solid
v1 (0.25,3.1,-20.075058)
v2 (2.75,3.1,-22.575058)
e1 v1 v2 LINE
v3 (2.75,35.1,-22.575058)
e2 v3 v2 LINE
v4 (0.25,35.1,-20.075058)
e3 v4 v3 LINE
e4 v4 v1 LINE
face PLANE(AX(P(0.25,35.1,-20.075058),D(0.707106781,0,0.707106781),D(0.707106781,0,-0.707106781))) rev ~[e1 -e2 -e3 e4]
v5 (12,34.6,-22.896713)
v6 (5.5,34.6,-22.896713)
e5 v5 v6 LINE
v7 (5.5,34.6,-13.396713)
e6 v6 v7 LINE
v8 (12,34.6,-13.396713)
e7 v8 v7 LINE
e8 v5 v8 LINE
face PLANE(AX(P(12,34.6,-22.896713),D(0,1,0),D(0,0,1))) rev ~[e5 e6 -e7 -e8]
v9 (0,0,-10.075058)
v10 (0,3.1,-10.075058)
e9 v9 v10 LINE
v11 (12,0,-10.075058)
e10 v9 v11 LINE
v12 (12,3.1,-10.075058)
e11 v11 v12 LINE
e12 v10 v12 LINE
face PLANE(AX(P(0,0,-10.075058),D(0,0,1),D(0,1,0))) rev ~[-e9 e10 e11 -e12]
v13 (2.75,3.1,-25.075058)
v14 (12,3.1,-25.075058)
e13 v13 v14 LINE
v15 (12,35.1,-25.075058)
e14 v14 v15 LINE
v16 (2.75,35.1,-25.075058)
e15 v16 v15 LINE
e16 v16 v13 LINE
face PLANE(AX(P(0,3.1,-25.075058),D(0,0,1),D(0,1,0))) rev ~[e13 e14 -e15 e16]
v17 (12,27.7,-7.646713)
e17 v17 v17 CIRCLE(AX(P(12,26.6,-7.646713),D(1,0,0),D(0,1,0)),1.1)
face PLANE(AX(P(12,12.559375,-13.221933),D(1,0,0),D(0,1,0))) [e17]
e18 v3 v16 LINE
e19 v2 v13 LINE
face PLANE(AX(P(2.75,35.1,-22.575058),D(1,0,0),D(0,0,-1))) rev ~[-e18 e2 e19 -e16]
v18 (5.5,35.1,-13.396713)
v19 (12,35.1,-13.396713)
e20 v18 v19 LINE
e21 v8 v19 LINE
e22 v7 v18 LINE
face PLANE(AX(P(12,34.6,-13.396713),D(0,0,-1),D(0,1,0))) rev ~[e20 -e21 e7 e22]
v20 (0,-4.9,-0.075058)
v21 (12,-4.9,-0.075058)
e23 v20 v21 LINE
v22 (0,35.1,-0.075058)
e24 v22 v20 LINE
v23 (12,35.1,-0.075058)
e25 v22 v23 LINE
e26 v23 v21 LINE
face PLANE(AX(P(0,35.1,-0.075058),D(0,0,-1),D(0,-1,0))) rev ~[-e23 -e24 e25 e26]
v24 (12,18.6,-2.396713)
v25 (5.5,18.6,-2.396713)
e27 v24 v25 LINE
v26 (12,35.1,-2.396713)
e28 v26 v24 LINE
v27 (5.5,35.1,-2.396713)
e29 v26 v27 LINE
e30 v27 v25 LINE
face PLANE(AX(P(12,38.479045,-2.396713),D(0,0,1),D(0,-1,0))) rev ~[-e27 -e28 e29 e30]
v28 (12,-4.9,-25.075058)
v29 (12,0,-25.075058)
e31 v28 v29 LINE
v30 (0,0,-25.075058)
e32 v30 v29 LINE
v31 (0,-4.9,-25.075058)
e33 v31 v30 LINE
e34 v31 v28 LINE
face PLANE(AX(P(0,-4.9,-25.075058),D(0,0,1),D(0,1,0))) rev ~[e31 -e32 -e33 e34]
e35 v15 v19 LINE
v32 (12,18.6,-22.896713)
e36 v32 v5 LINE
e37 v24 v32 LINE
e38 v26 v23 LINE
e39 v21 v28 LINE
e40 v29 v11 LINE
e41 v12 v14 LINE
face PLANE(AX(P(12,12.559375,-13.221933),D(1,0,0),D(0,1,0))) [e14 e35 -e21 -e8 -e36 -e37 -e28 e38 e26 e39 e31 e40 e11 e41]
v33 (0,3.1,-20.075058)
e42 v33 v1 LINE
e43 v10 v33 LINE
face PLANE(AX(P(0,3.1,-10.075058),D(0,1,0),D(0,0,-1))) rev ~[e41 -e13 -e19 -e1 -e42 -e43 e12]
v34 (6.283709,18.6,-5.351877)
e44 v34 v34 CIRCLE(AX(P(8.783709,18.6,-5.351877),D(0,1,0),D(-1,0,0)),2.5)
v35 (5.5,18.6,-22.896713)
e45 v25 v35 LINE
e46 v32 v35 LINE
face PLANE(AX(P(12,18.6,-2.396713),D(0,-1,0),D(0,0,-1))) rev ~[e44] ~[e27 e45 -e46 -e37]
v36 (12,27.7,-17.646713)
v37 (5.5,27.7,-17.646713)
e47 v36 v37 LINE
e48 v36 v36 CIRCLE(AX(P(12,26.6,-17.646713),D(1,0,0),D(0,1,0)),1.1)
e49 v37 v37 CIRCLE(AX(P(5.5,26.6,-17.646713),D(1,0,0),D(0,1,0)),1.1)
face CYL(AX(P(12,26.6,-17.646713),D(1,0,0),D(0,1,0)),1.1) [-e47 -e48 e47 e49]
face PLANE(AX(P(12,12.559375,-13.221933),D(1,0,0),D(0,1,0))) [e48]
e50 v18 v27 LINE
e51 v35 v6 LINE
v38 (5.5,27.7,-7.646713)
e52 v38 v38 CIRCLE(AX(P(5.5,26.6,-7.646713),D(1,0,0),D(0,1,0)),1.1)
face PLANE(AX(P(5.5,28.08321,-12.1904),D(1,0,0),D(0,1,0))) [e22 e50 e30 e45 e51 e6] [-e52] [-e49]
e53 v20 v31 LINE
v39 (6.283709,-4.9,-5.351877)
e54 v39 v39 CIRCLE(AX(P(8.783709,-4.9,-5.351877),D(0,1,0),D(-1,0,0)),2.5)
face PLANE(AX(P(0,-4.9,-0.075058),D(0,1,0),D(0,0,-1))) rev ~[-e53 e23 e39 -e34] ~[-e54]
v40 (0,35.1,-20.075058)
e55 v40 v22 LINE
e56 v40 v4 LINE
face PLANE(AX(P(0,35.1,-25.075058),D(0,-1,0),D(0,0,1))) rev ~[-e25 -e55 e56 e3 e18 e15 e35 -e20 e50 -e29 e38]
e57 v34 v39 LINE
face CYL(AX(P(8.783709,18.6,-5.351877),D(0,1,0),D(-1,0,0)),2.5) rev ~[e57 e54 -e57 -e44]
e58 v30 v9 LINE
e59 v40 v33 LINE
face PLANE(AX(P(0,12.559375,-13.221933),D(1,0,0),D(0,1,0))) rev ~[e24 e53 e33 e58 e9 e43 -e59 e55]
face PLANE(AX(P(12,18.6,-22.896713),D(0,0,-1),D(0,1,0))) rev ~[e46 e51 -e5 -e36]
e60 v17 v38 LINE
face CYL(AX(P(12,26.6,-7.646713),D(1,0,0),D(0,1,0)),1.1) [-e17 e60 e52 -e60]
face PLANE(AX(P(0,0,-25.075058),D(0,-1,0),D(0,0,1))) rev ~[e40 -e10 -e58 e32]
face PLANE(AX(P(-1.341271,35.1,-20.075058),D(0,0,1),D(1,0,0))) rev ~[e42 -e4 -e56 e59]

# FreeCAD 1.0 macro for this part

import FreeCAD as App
import Part
import Sketcher

V = App.Vector
Q = App.Units.Quantity

doc = App.newDocument("Part")
body = doc.addObject("PartDesign::Body", "Body")

# Sketch on YZ plane
sketch1 = body.newObject("Sketcher::SketchObject", "Sketch")
sketch1.AttachmentSupport = (doc.getObject("YZ_Plane"), [""])
sketch1.MapMode = "FlatFace"
sketch1.addGeometry([
    Part.LineSegment(V(35.1, -0.075058, 0), V(-4.9, -0.075058, 0)),  # 0
    Part.LineSegment(V(-4.9, -0.075058, 0), V(-4.9, -25.075058, 0)),  # 1
    Part.LineSegment(V(-4.9, -25.075058, 0), V(0, -25.075058, 0)),  # 2
    Part.LineSegment(V(0, -25.075058, 0), V(0, -10.075058, 0)),  # 3
    Part.LineSegment(V(0, -10.075058, 0), V(3.1, -10.075058, 0)),  # 4
    Part.LineSegment(V(3.1, -10.075058, 0), V(3.1, -25.075058, 0)),  # 5
    Part.LineSegment(V(3.1, -25.075058, 0), V(35.1, -25.075058, 0)),  # 6
    Part.LineSegment(V(35.1, -25.075058, 0), V(35.1, -0.075058, 0)),  # 7
], False)
sketch1.addConstraint([
    Sketcher.Constraint("Coincident", 0, 2, 1, 1),
    Sketcher.Constraint("Coincident", 1, 2, 2, 1),
    Sketcher.Constraint("Coincident", 2, 2, 3, 1),
    Sketcher.Constraint("Coincident", 3, 2, 4, 1),
    Sketcher.Constraint("Coincident", 4, 2, 5, 1),
    Sketcher.Constraint("Coincident", 5, 2, 6, 1),
    Sketcher.Constraint("Coincident", 6, 2, 7, 1),
    Sketcher.Constraint("Coincident", 7, 2, 0, 1),
    Sketcher.Constraint("Horizontal", 0),
    Sketcher.Constraint("Vertical", 1),
    Sketcher.Constraint("Horizontal", 2),
    Sketcher.Constraint("Vertical", 3),
    Sketcher.Constraint("Horizontal", 4),
    Sketcher.Constraint("Vertical", 5),
    Sketcher.Constraint("Horizontal", 6),
    Sketcher.Constraint("Vertical", 7),
    Sketcher.Constraint("PointOnObject", 2, 2, -2),
    Sketcher.Constraint("Horizontal", 2, 2, 5, 2),
    Sketcher.Constraint("DistanceX", 0, 2, 0, 1, Q("40 mm")),
    Sketcher.Constraint("DistanceX", 6, 1, 6, 2, Q("32 mm")),
    Sketcher.Constraint("DistanceY", 1, 2, 1, 1, Q("25 mm")),
    Sketcher.Constraint("DistanceY", 3, 1, 3, 2, Q("15 mm")),
    Sketcher.Constraint("DistanceX", 2, 1, 2, 2, Q("4.9 mm")),
    Sketcher.Constraint("DistanceY", 0, 2, -1, 1, Q("0.075058 mm")),
])
pad1 = body.newObject("PartDesign::Pad", "Pad")
pad1.Profile = sketch1
pad1.Length = 12

# Sketch on YZ plane
sketch2 = body.newObject("Sketcher::SketchObject", "Sketch001")
sketch2.AttachmentSupport = (doc.getObject("YZ_Plane"), [""])
sketch2.MapMode = "FlatFace"
sketch2.AttachmentOffset = App.Placement(V(0, 0, 12), App.Rotation())
sketch2.addGeometry([
    Part.LineSegment(V(18.6, -2.396713, 0), V(18.6, -22.896713, 0)),  # 0
    Part.LineSegment(V(18.6, -22.896713, 0), V(34.6, -22.896713, 0)),  # 1
    Part.LineSegment(V(34.6, -22.896713, 0), V(34.6, -13.396713, 0)),  # 2
    Part.LineSegment(V(34.6, -13.396713, 0), V(38.479045, -13.396713, 0)),  # 3
    Part.LineSegment(V(38.479045, -13.396713, 0), V(38.479045, -2.396713, 0)),  # 4
    Part.LineSegment(V(38.479045, -2.396713, 0), V(18.6, -2.396713, 0)),  # 5
    Part.Circle(V(26.6, -17.646713, 0), V(0, 0, 1), 1.1),  # 6
    Part.Circle(V(26.6, -7.646713, 0), V(0, 0, 1), 1.1),  # 7
], False)
sketch2.addConstraint([
    Sketcher.Constraint("Coincident", 0, 2, 1, 1),
    Sketcher.Constraint("Coincident", 1, 2, 2, 1),
    Sketcher.Constraint("Coincident", 2, 2, 3, 1),
    Sketcher.Constraint("Coincident", 3, 2, 4, 1),
    Sketcher.Constraint("Coincident", 4, 2, 5, 1),
    Sketcher.Constraint("Coincident", 5, 2, 0, 1),
    Sketcher.Constraint("Vertical", 0),
    Sketcher.Constraint("Horizontal", 1),
    Sketcher.Constraint("Vertical", 2),
    Sketcher.Constraint("Horizontal", 3),
    Sketcher.Constraint("Vertical", 4),
    Sketcher.Constraint("Horizontal", 5),
    Sketcher.Constraint("Equal", 6, 7),
    Sketcher.Constraint("Vertical", 6, 3, 7, 3),
    Sketcher.Constraint("Diameter", 6, Q("2.2 mm")),
    Sketcher.Constraint("DistanceX", 1, 1, 1, 2, Q("16 mm")),
    Sketcher.Constraint("DistanceY", 4, 1, 4, 2, Q("11 mm")),
    Sketcher.Constraint("DistanceY", 0, 2, 0, 1, Q("20.5 mm")),
    Sketcher.Constraint("DistanceY", 6, 3, 7, 3, Q("10 mm")),
    Sketcher.Constraint("DistanceX", 0, 2, 6, 3, Q("8 mm")),
    Sketcher.Constraint("DistanceX", -1, 1, 6, 3, Q("26.6 mm")),
    Sketcher.Constraint("DistanceY", 0, 2, 6, 3, Q("5.25 mm")),
    Sketcher.Constraint("DistanceX", 3, 1, 3, 2, Q("3.879045 mm")),
    Sketcher.Constraint("DistanceY", 6, 3, -1, 1, Q("17.646713 mm")),
])
pocket1 = body.newObject("PartDesign::Pocket", "Pocket")
pocket1.Profile = sketch2
pocket1.Length = 6.5

# Sketch on XZ plane
sketch3 = body.newObject("Sketcher::SketchObject", "Sketch002")
sketch3.AttachmentSupport = (doc.getObject("XZ_Plane"), [""])
sketch3.MapMode = "FlatFace"
sketch3.AttachmentOffset = App.Placement(V(0, 0, -18.6), App.Rotation())
sketch3.addGeometry(Part.Circle(V(8.783709, -5.351877, 0), V(0, 0, 1), 2.5), False)
sketch3.addConstraint([
    Sketcher.Constraint("Diameter", 0, Q("5 mm")),
    Sketcher.Constraint("DistanceX", -1, 1, 0, 3, Q("8.783709 mm")),
    Sketcher.Constraint("DistanceY", 0, 3, -1, 1, Q("5.351877 mm")),
])
pocket2 = body.newObject("PartDesign::Pocket", "Pocket001")
pocket2.Profile = sketch3
pocket2.Length = 25
pocket2.Reversed = True

# Sketch on XZ plane
sketch4 = body.newObject("Sketcher::SketchObject", "Sketch003")
sketch4.AttachmentSupport = (doc.getObject("XZ_Plane"), [""])
sketch4.MapMode = "FlatFace"
sketch4.AttachmentOffset = App.Placement(V(0, 0, -35.1), App.Rotation())
sketch4.addGeometry([
    Part.LineSegment(V(-1.341271, -20.075058, 0), V(0.25, -20.075058, 0)),  # 0
    Part.LineSegment(V(0.25, -20.075058, 0), V(2.75, -22.575058, 0)),  # 1
    Part.LineSegment(V(2.75, -22.575058, 0), V(2.75, -25.075058, 0)),  # 2
    Part.LineSegment(V(2.75, -25.075058, 0), V(-1.341271, -25.075058, 0)),  # 3
    Part.LineSegment(V(-1.341271, -25.075058, 0), V(-1.341271, -20.075058, 0)),  # 4
], False)
sketch4.addConstraint([
    Sketcher.Constraint("Coincident", 0, 2, 1, 1),
    Sketcher.Constraint("Coincident", 1, 2, 2, 1),
    Sketcher.Constraint("Coincident", 2, 2, 3, 1),
    Sketcher.Constraint("Coincident", 3, 2, 4, 1),
    Sketcher.Constraint("Coincident", 4, 2, 0, 1),
    Sketcher.Constraint("Horizontal", 0),
    Sketcher.Constraint("Vertical", 2),
    Sketcher.Constraint("Horizontal", 3),
    Sketcher.Constraint("Vertical", 4),
    Sketcher.Constraint("DistanceY", 4, 1, 4, 2, Q("5 mm")),
    Sketcher.Constraint("Angle", 1, Q("-45 deg")),
    Sketcher.Constraint("DistanceY", 2, 2, 2, 1, Q("2.5 mm")),
    Sketcher.Constraint("DistanceX", -1, 1, 0, 2, Q("0.25 mm")),
    Sketcher.Constraint("DistanceX", 0, 1, 0, 2, Q("1.591271 mm")),
    Sketcher.Constraint("DistanceY", 0, 2, -1, 1, Q("20.075058 mm")),
])
pocket3 = body.newObject("PartDesign::Pocket", "Pocket002")
pocket3.Profile = sketch4
pocket3.Length = 32
pocket3.Reversed = True

doc.recompute()
